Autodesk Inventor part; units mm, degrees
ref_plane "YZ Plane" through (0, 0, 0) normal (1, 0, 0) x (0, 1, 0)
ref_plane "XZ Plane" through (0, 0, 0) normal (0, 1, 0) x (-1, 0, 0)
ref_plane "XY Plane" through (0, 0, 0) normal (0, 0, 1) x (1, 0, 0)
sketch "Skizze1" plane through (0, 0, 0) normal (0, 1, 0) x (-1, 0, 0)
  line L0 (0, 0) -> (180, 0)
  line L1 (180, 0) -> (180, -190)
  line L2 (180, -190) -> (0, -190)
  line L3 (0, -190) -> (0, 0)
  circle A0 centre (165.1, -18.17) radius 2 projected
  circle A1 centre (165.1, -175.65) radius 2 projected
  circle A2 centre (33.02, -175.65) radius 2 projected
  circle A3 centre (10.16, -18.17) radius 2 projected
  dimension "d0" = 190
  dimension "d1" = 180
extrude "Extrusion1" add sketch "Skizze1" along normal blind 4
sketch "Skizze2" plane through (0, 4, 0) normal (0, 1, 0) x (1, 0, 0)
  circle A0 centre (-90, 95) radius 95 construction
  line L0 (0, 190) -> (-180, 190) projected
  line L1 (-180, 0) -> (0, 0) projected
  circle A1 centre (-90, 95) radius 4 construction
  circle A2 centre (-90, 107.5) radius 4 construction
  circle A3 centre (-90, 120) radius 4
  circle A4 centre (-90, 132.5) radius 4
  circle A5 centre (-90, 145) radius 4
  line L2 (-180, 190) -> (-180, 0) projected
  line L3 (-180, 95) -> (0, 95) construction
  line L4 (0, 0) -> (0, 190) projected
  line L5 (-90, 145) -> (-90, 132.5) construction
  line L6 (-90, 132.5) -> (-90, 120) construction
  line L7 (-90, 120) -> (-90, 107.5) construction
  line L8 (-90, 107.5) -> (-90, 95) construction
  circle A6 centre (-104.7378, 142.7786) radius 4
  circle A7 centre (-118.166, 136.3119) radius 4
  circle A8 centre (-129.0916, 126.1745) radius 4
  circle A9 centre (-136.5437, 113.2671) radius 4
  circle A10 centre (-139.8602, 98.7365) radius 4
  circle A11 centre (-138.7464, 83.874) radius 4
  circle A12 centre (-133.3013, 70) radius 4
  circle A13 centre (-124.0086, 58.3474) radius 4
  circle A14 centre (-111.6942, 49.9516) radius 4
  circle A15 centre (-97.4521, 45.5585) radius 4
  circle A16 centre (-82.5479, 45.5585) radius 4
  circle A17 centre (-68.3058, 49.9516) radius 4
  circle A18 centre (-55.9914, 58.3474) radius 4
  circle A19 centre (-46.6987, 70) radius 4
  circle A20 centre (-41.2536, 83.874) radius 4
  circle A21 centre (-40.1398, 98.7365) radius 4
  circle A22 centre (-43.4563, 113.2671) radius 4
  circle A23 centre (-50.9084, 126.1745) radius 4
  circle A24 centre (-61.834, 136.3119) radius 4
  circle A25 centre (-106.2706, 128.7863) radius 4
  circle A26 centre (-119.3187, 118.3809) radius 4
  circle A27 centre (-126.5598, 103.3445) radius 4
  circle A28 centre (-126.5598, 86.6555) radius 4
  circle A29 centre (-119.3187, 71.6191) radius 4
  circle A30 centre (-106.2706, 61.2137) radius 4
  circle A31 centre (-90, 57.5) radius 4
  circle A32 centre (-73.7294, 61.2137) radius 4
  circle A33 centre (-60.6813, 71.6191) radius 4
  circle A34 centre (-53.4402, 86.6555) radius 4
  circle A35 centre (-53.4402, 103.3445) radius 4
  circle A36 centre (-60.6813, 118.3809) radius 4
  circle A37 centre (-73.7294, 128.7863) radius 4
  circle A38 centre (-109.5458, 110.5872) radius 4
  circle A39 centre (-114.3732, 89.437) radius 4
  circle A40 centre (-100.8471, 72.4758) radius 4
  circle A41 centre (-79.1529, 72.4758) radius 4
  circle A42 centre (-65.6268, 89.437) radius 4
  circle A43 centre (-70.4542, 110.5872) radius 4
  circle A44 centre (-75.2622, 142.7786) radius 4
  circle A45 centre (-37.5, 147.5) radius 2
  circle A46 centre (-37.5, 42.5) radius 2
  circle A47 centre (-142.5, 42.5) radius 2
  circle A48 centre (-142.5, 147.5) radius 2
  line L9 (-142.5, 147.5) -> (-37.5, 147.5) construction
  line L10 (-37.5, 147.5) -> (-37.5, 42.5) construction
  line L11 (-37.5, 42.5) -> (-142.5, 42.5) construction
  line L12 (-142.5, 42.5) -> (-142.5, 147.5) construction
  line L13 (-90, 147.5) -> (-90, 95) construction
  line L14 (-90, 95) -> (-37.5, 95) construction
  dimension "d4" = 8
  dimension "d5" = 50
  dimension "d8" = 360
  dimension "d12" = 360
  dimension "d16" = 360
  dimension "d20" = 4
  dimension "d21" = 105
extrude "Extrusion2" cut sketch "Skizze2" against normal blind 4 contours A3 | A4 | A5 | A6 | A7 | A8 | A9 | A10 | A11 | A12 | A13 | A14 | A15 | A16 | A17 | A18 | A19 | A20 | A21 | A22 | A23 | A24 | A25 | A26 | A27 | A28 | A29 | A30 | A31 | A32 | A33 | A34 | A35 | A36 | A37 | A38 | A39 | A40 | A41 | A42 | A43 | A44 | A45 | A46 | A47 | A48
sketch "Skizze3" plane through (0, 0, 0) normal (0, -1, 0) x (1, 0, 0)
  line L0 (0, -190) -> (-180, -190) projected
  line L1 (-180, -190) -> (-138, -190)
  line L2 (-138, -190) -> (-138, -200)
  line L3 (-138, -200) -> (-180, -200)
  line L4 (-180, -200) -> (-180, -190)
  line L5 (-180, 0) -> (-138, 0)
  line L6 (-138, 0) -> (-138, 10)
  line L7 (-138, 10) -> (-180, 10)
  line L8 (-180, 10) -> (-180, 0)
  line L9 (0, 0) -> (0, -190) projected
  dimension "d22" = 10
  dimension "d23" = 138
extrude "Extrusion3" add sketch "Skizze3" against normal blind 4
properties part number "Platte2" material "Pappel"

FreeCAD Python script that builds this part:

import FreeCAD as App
import Part
import Sketcher

V = App.Vector


def add_polygon(sketch, points):
    """Adds a closed chain of lines whose ends are joined by coincident constraints."""
    first, n = sketch.GeometryCount, len(points)
    for a, b in zip(points, points[1:] + points[:1]):
        sketch.addGeometry(Part.LineSegment(App.Vector(*a, 0), App.Vector(*b, 0)), False)
    for i in range(n):
        sketch.addConstraint(Sketcher.Constraint("Coincident", first + i, 2, first + (i + 1) % n, 1))

doc = App.newDocument("Part")
body = doc.addObject("PartDesign::Body", "Body")

# Sketch on XZ plane
sketch1 = body.newObject("Sketcher::SketchObject", "Sketch")
sketch1.AttachmentSupport = (doc.getObject("XZ_Plane"), [""])
sketch1.MapMode = "FlatFace"
add_polygon(sketch1, [(-180, 0), (0, 0), (0, -190), (-180, -190)])  # lines 0-3
sketch1.addGeometry(Part.Circle(V(-33, -175.7, 0), V(0, 0, 1), 2), False)  # 4
sketch1.addGeometry(Part.Circle(V(-165.1, -175.7, 0), V(0, 0, 1), 2), False)  # 5
sketch1.addGeometry(Part.Circle(V(-10.2, -18.2, 0), V(0, 0, 1), 2), False)  # 6
sketch1.addGeometry(Part.Circle(V(-165.1, -18.2, 0), V(0, 0, 1), 2), False)  # 7
sketch1.addConstraint([
    Sketcher.Constraint("Horizontal", 0),
    Sketcher.Constraint("Vertical", 1),
    Sketcher.Constraint("Horizontal", 2),
    Sketcher.Constraint("Vertical", 3),
    Sketcher.Constraint("Coincident", 0, 2, -1, 1),
    Sketcher.Constraint("Equal", 4, 5),
    Sketcher.Constraint("Equal", 5, 6),
    Sketcher.Constraint("Equal", 6, 7),
    Sketcher.Constraint("Horizontal", 4, 3, 5, 3),
    Sketcher.Constraint("Horizontal", 6, 3, 7, 3),
    Sketcher.Constraint("Vertical", 5, 3, 7, 3),
    Sketcher.Constraint("DistanceX", 0, 1, 0, 2, 180.0),
    Sketcher.Constraint("DistanceY", 1, 2, 1, 1, 190.0),
    Sketcher.Constraint("Diameter", 4, 4.0),
    Sketcher.Constraint("DistanceX", 5, 3, -1, 1, 165.1),
    Sketcher.Constraint("DistanceX", 4, 3, -1, 1, 33.02),
    Sketcher.Constraint("DistanceY", 4, 3, -1, 1, 175.65),
    Sketcher.Constraint("DistanceX", 6, 3, -1, 1, 10.16),
    Sketcher.Constraint("DistanceY", 6, 3, -1, 1, 18.17),
])
pad1 = body.newObject("PartDesign::Pad", "Pad")
pad1.Profile = sketch1
pad1.Length = 4
pad1.Reversed = True

# Sketch on XZ plane
sketch2 = body.newObject("Sketcher::SketchObject", "Sketch001")
sketch2.AttachmentSupport = (doc.getObject("XZ_Plane"), [""])
sketch2.MapMode = "FlatFace"
sketch2.AttachmentOffset = App.Placement(V(0, 0, -4), App.Rotation())
sketch2.addGeometry([
    Part.Circle(V(-90, -120, 0), V(0, 0, 1), 4),  # 0
    Part.Circle(V(-90, -132.5, 0), V(0, 0, 1), 4),  # 1
    Part.Circle(V(-90, -145, 0), V(0, 0, 1), 4),  # 2
    Part.Circle(V(-104.7, -142.8, 0), V(0, 0, 1), 4),  # 3
    Part.Circle(V(-118.2, -136.3, 0), V(0, 0, 1), 4),  # 4
    Part.Circle(V(-129.1, -126.2, 0), V(0, 0, 1), 4),  # 5
    Part.Circle(V(-136.5, -113.3, 0), V(0, 0, 1), 4),  # 6
    Part.Circle(V(-139.9, -98.7, 0), V(0, 0, 1), 4),  # 7
    Part.Circle(V(-138.7, -83.9, 0), V(0, 0, 1), 4),  # 8
    Part.Circle(V(-133.3, -70, 0), V(0, 0, 1), 4),  # 9
    Part.Circle(V(-124, -58.3, 0), V(0, 0, 1), 4),  # 10
    Part.Circle(V(-111.7, -50, 0), V(0, 0, 1), 4),  # 11
    Part.Circle(V(-97.5, -45.6, 0), V(0, 0, 1), 4),  # 12
    Part.Circle(V(-82.5, -45.6, 0), V(0, 0, 1), 4),  # 13
    Part.Circle(V(-68.3, -50, 0), V(0, 0, 1), 4),  # 14
    Part.Circle(V(-56, -58.3, 0), V(0, 0, 1), 4),  # 15
    Part.Circle(V(-46.7, -70, 0), V(0, 0, 1), 4),  # 16
    Part.Circle(V(-41.3, -83.9, 0), V(0, 0, 1), 4),  # 17
    Part.Circle(V(-40.1, -98.7, 0), V(0, 0, 1), 4),  # 18
    Part.Circle(V(-43.5, -113.3, 0), V(0, 0, 1), 4),  # 19
    Part.Circle(V(-50.9, -126.2, 0), V(0, 0, 1), 4),  # 20
    Part.Circle(V(-61.8, -136.3, 0), V(0, 0, 1), 4),  # 21
    Part.Circle(V(-106.3, -128.8, 0), V(0, 0, 1), 4),  # 22
    Part.Circle(V(-119.3, -118.4, 0), V(0, 0, 1), 4),  # 23
    Part.Circle(V(-126.6, -103.3, 0), V(0, 0, 1), 4),  # 24
    Part.Circle(V(-126.6, -86.7, 0), V(0, 0, 1), 4),  # 25
    Part.Circle(V(-119.3, -71.6, 0), V(0, 0, 1), 4),  # 26
    Part.Circle(V(-106.3, -61.2, 0), V(0, 0, 1), 4),  # 27
    Part.Circle(V(-90, -57.5, 0), V(0, 0, 1), 4),  # 28
    Part.Circle(V(-73.7, -61.2, 0), V(0, 0, 1), 4),  # 29
    Part.Circle(V(-60.7, -71.6, 0), V(0, 0, 1), 4),  # 30
    Part.Circle(V(-53.4, -86.7, 0), V(0, 0, 1), 4),  # 31
    Part.Circle(V(-53.4, -103.3, 0), V(0, 0, 1), 4),  # 32
    Part.Circle(V(-60.7, -118.4, 0), V(0, 0, 1), 4),  # 33
    Part.Circle(V(-73.7, -128.8, 0), V(0, 0, 1), 4),  # 34
    Part.Circle(V(-109.5, -110.6, 0), V(0, 0, 1), 4),  # 35
    Part.Circle(V(-114.4, -89.4, 0), V(0, 0, 1), 4),  # 36
    Part.Circle(V(-100.8, -72.5, 0), V(0, 0, 1), 4),  # 37
    Part.Circle(V(-79.2, -72.5, 0), V(0, 0, 1), 4),  # 38
    Part.Circle(V(-65.6, -89.4, 0), V(0, 0, 1), 4),  # 39
    Part.Circle(V(-70.5, -110.6, 0), V(0, 0, 1), 4),  # 40
    Part.Circle(V(-75.3, -142.8, 0), V(0, 0, 1), 4),  # 41
    Part.Circle(V(-37.5, -147.5, 0), V(0, 0, 1), 2),  # 42
    Part.Circle(V(-37.5, -42.5, 0), V(0, 0, 1), 2),  # 43
    Part.Circle(V(-142.5, -42.5, 0), V(0, 0, 1), 2),  # 44
    Part.Circle(V(-142.5, -147.5, 0), V(0, 0, 1), 2),  # 45
], False)
sketch2.addConstraint([
    Sketcher.Constraint("Equal", 0, 1),
    Sketcher.Constraint("Equal", 1, 2),
    Sketcher.Constraint("Equal", 2, 3),
    Sketcher.Constraint("Equal", 3, 4),
    Sketcher.Constraint("Equal", 4, 5),
    Sketcher.Constraint("Equal", 5, 6),
    Sketcher.Constraint("Equal", 6, 7),
    Sketcher.Constraint("Equal", 7, 8),
    Sketcher.Constraint("Equal", 8, 9),
    Sketcher.Constraint("Equal", 9, 10),
    Sketcher.Constraint("Equal", 10, 11),
    Sketcher.Constraint("Equal", 11, 12),
    Sketcher.Constraint("Equal", 12, 13),
    Sketcher.Constraint("Equal", 13, 14),
    Sketcher.Constraint("Equal", 14, 15),
    Sketcher.Constraint("Equal", 15, 16),
    Sketcher.Constraint("Equal", 16, 17),
    Sketcher.Constraint("Equal", 17, 18),
    Sketcher.Constraint("Equal", 18, 19),
    Sketcher.Constraint("Equal", 19, 20),
    Sketcher.Constraint("Equal", 20, 21),
    Sketcher.Constraint("Equal", 21, 22),
    Sketcher.Constraint("Equal", 22, 23),
    Sketcher.Constraint("Equal", 23, 24),
    Sketcher.Constraint("Equal", 24, 25),
    Sketcher.Constraint("Equal", 25, 26),
    Sketcher.Constraint("Equal", 26, 27),
    Sketcher.Constraint("Equal", 27, 28),
    Sketcher.Constraint("Equal", 28, 29),
    Sketcher.Constraint("Equal", 29, 30),
    Sketcher.Constraint("Equal", 30, 31),
    Sketcher.Constraint("Equal", 31, 32),
    Sketcher.Constraint("Equal", 32, 33),
    Sketcher.Constraint("Equal", 33, 34),
    Sketcher.Constraint("Equal", 34, 35),
    Sketcher.Constraint("Equal", 35, 36),
    Sketcher.Constraint("Equal", 36, 37),
    Sketcher.Constraint("Equal", 37, 38),
    Sketcher.Constraint("Equal", 38, 39),
    Sketcher.Constraint("Equal", 39, 40),
    Sketcher.Constraint("Equal", 40, 41),
    Sketcher.Constraint("Equal", 42, 43),
    Sketcher.Constraint("Equal", 43, 44),
    Sketcher.Constraint("Equal", 44, 45),
    Sketcher.Constraint("Horizontal", 12, 3, 13, 3),
    Sketcher.Constraint("Horizontal", 11, 3, 14, 3),
    Sketcher.Constraint("Horizontal", 10, 3, 15, 3),
    Sketcher.Constraint("Horizontal", 9, 3, 16, 3),
    Sketcher.Constraint("Horizontal", 8, 3, 17, 3),
    Sketcher.Constraint("Horizontal", 7, 3, 18, 3),
    Sketcher.Constraint("Horizontal", 6, 3, 19, 3),
    Sketcher.Constraint("Horizontal", 5, 3, 20, 3),
    Sketcher.Constraint("Horizontal", 4, 3, 21, 3),
    Sketcher.Constraint("Horizontal", 27, 3, 29, 3),
    Sketcher.Constraint("Horizontal", 26, 3, 30, 3),
    Sketcher.Constraint("Horizontal", 25, 3, 31, 3),
    Sketcher.Constraint("Horizontal", 24, 3, 32, 3),
    Sketcher.Constraint("Horizontal", 23, 3, 33, 3),
    Sketcher.Constraint("Horizontal", 22, 3, 34, 3),
    Sketcher.Constraint("Horizontal", 37, 3, 38, 3),
    Sketcher.Constraint("Horizontal", 36, 3, 39, 3),
    Sketcher.Constraint("Horizontal", 35, 3, 40, 3),
    Sketcher.Constraint("Horizontal", 3, 3, 41, 3),
    Sketcher.Constraint("Horizontal", 43, 3, 44, 3),
    Sketcher.Constraint("Horizontal", 42, 3, 45, 3),
    Sketcher.Constraint("Vertical", 0, 3, 1, 3),
    Sketcher.Constraint("Vertical", 1, 3, 2, 3),
    Sketcher.Constraint("Vertical", 24, 3, 25, 3),
    Sketcher.Constraint("Vertical", 23, 3, 26, 3),
    Sketcher.Constraint("Vertical", 22, 3, 27, 3),
    Sketcher.Constraint("Vertical", 2, 3, 28, 3),
    Sketcher.Constraint("Vertical", 31, 3, 32, 3),
    Sketcher.Constraint("Vertical", 30, 3, 33, 3),
    Sketcher.Constraint("Vertical", 29, 3, 34, 3),
    Sketcher.Constraint("Vertical", 42, 3, 43, 3),
    Sketcher.Constraint("Vertical", 44, 3, 45, 3),
    Sketcher.Constraint("Diameter", 0, 8.0),
    Sketcher.Constraint("Diameter", 42, 4.0),
    Sketcher.Constraint("DistanceY", 0, 3, 9, 3, 50.0),
    Sketcher.Constraint("DistanceX", 0, 3, -1, 1, 90.0),
    Sketcher.Constraint("DistanceY", 0, 3, -1, 1, 120.0),
    Sketcher.Constraint("DistanceY", 2, 3, -1, 1, 145.0),
    Sketcher.Constraint("DistanceY", 1, 3, -1, 1, 132.5),
    Sketcher.Constraint("DistanceY", 28, 3, -1, 1, 57.5),
    Sketcher.Constraint("DistanceX", 42, 3, -1, 1, 37.5),
    Sketcher.Constraint("DistanceY", 42, 3, -1, 1, 147.5),
    Sketcher.Constraint("DistanceY", 43, 3, -1, 1, 42.5),
    Sketcher.Constraint("DistanceX", 44, 3, -1, 1, 142.5),
    Sketcher.Constraint("DistanceY", 5, 3, 24, 3, 22.83),
    Sketcher.Constraint("DistanceX", 10, 3, 26, 3, 4.69),
    Sketcher.Constraint("DistanceX", 30, 3, 15, 3, 4.69),
    Sketcher.Constraint("DistanceX", 4, 3, -1, 1, 118.166),
    Sketcher.Constraint("DistanceY", 4, 3, -1, 1, 136.312),
    Sketcher.Constraint("DistanceY", 6, 3, -1, 1, 113.267),
    Sketcher.Constraint("DistanceY", 8, 3, -1, 1, 83.874),
    Sketcher.Constraint("DistanceX", 12, 3, -1, 1, 97.452),
    Sketcher.Constraint("DistanceX", 13, 3, -1, 1, 82.548),
    Sketcher.Constraint("DistanceX", 21, 3, -1, 1, 61.834),
    Sketcher.Constraint("DistanceY", 23, 3, -1, 1, 118.381),
    Sketcher.Constraint("DistanceY", 26, 3, -1, 1, 71.619),
    Sketcher.Constraint("DistanceY", 36, 3, -1, 1, 89.437),
    Sketcher.Constraint("DistanceX", 37, 3, -1, 1, 100.847),
    Sketcher.Constraint("DistanceX", 38, 3, -1, 1, 79.153),
    Sketcher.Constraint("DistanceY", 3, 3, 5, 3, 16.604),
    Sketcher.Constraint("DistanceX", 6, 3, 5, 3, 7.452),
    Sketcher.Constraint("DistanceX", 6, 3, 3, 3, 31.806),
    Sketcher.Constraint("DistanceY", 5, 3, 7, 3, 27.438),
    Sketcher.Constraint("DistanceX", 8, 3, 9, 3, 5.445),
    Sketcher.Constraint("DistanceX", 7, 3, 9, 3, 6.559),
    Sketcher.Constraint("DistanceY", 7, 3, 10, 3, 40.389),
    Sketcher.Constraint("DistanceX", 6, 3, 10, 3, 12.535),
    Sketcher.Constraint("DistanceX", 9, 3, 11, 3, 21.607),
    Sketcher.Constraint("DistanceY", 7, 3, 11, 3, 48.785),
    Sketcher.Constraint("DistanceX", 11, 3, 12, 3, 14.242),
    Sketcher.Constraint("DistanceY", 11, 3, 12, 3, 4.393),
    Sketcher.Constraint("DistanceX", 13, 3, 14, 3, 14.242),
    Sketcher.Constraint("DistanceX", 14, 3, 16, 3, 21.607),
    Sketcher.Constraint("DistanceX", 16, 3, 17, 3, 5.445),
    Sketcher.Constraint("DistanceX", 16, 3, 18, 3, 6.559),
    Sketcher.Constraint("DistanceX", 20, 3, 19, 3, 7.452),
    Sketcher.Constraint("DistanceX", 23, 3, 22, 3, 13.048),
    Sketcher.Constraint("DistanceX", 6, 3, 24, 3, 9.984),
    Sketcher.Constraint("DistanceY", 24, 3, 25, 3, 16.689),
    Sketcher.Constraint("DistanceY", 27, 3, 11, 3, 11.262),
    Sketcher.Constraint("DistanceX", 29, 3, 15, 3, 17.738),
    Sketcher.Constraint("DistanceX", 30, 3, 31, 3, 7.241),
    Sketcher.Constraint("DistanceX", 31, 3, 19, 3, 9.984),
    Sketcher.Constraint("DistanceX", 23, 3, 35, 3, 9.773),
    Sketcher.Constraint("DistanceY", 22, 3, 35, 3, 18.199),
    Sketcher.Constraint("DistanceY", 37, 3, 27, 3, 11.262),
    Sketcher.Constraint("DistanceX", 36, 3, 37, 3, 13.526),
    Sketcher.Constraint("DistanceX", 38, 3, 39, 3, 13.526),
    Sketcher.Constraint("DistanceX", 40, 3, 33, 3, 9.773),
    Sketcher.Constraint("DistanceX", 3, 3, -1, 1, 104.7378),
    Sketcher.Constraint("DistanceY", 3, 3, -1, 1, 142.7786),
    Sketcher.Constraint("DistanceX", 15, 3, -1, 1, 55.9914),
    Sketcher.Constraint("DistanceY", 22, 3, -1, 1, 128.7863),
    Sketcher.Constraint("DistanceX", 41, 3, -1, 1, 75.2622),
])
pocket1 = body.newObject("PartDesign::Pocket", "Pocket")
pocket1.Profile = sketch2
pocket1.Length = 4
pocket1.Reversed = True

# Sketch on XZ plane
sketch3 = body.newObject("Sketcher::SketchObject", "Sketch002")
sketch3.AttachmentSupport = (doc.getObject("XZ_Plane"), [""])
sketch3.MapMode = "FlatFace"
add_polygon(sketch3, [(-138, -200), (-138, -190), (-180, -190), (-180, -200)])  # lines 0-3
add_polygon(sketch3, [(-180, 10), (-180, 0), (-138, 0), (-138, 10)])  # lines 4-7
sketch3.addConstraint([
    Sketcher.Constraint("Vertical", 0),
    Sketcher.Constraint("Horizontal", 1),
    Sketcher.Constraint("Vertical", 2),
    Sketcher.Constraint("Horizontal", 3),
    Sketcher.Constraint("Vertical", 4),
    Sketcher.Constraint("Horizontal", 5),
    Sketcher.Constraint("Vertical", 6),
    Sketcher.Constraint("Horizontal", 7),
    Sketcher.Constraint("PointOnObject", 4, 2, -1),
    Sketcher.Constraint("Vertical", 2, 2, 4, 2),
    Sketcher.Constraint("Vertical", 3, 2, 5, 2),
    Sketcher.Constraint("Equal", 2, 4),
    Sketcher.Constraint("DistanceY", 0, 1, 0, 2, 10.0),
    Sketcher.Constraint("DistanceX", 0, 2, -1, 1, 138.0),
    Sketcher.Constraint("DistanceX", 1, 2, 1, 1, 42.0),
    Sketcher.Constraint("DistanceY", 0, 2, -1, 1, 190.0),
])
pad2 = body.newObject("PartDesign::Pad", "Pad001")
pad2.Profile = sketch3
pad2.Length = 4
pad2.Reversed = True

doc.recompute()
